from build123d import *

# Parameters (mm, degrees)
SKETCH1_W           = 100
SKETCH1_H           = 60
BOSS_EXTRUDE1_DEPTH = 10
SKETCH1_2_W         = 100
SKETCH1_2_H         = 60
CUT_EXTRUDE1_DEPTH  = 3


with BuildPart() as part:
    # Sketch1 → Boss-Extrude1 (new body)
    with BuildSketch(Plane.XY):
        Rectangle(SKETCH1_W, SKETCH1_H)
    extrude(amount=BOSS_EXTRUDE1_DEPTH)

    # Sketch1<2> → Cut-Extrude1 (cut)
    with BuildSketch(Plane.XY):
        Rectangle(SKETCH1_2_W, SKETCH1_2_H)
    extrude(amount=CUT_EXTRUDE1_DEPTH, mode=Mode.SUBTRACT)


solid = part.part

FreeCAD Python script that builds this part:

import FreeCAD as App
import Part
import Sketcher
from FreeCAD import Vector
Q = App.Units.Quantity


def add_polygon(sketch, points):
    """Adds a closed chain of lines whose ends are joined by coincident constraints."""
    first, n = sketch.GeometryCount, len(points)
    for a, b in zip(points, points[1:] + points[:1]):
        sketch.addGeometry(Part.LineSegment(App.Vector(*a, 0), App.Vector(*b, 0)), False)
    for i in range(n):
        sketch.addConstraint(Sketcher.Constraint("Coincident", first + i, 2, first + (i + 1) % n, 1))

doc = App.newDocument("Part")
params = doc.addObject("Spreadsheet::Sheet", "Params")
for row, (alias, value) in enumerate([
    ("sketch1_width", "100 mm"),
    ("sketch1_height", "60 mm"),
    ("pad1_length", "10 mm"),
    ("sketch2_width", "100 mm"),
    ("sketch2_height", "60 mm"),
    ("pocket1_length", "3 mm"),
], start=1):
    params.set(f"A{row}", alias)
    params.set(f"B{row}", "=" + value)
    params.setAlias(f"B{row}", alias)

body = doc.addObject("PartDesign::Body", "Body")

sketch1 = body.newObject("Sketcher::SketchObject", "Sketch")
sketch1.AttachmentSupport = (doc.getObject("XY_Plane"), [""])
sketch1.MapMode = "FlatFace"
add_polygon(sketch1, [(-50, 30), (-50, -30), (50, -30), (50, 30)])
sketch1.addConstraint([
    Sketcher.Constraint("Vertical", 0),
    Sketcher.Constraint("Horizontal", 1),
    Sketcher.Constraint("Vertical", 2),
    Sketcher.Constraint("Horizontal", 3),
    Sketcher.Constraint("Symmetric", 0, 2, 2, 2, -1, 1),
    Sketcher.Constraint("DistanceX", 1, 1, 1, 2, Q("100 mm")),
    Sketcher.Constraint("DistanceY", 0, 2, 0, 1, Q("60 mm")),
])
sketch1.setExpression("Constraints[9]", "Params.sketch1_width")
sketch1.setExpression("Constraints[10]", "Params.sketch1_height")
pad1 = body.newObject("PartDesign::Pad", "Pad")
pad1.Profile = sketch1
pad1.setExpression("Length", "Params.pad1_length")

sketch2 = body.newObject("Sketcher::SketchObject", "Sketch001")
sketch2.AttachmentSupport = (doc.getObject("XY_Plane"), [""])
sketch2.MapMode = "FlatFace"
add_polygon(sketch2, [(-50, 30), (-50, -30), (50, -30), (50, 30)])
sketch2.addConstraint([
    Sketcher.Constraint("Vertical", 0),
    Sketcher.Constraint("Horizontal", 1),
    Sketcher.Constraint("Vertical", 2),
    Sketcher.Constraint("Horizontal", 3),
    Sketcher.Constraint("Symmetric", 0, 2, 2, 2, -1, 1),
    Sketcher.Constraint("DistanceX", 1, 1, 1, 2, Q("100 mm")),
    Sketcher.Constraint("DistanceY", 0, 2, 0, 1, Q("60 mm")),
])
sketch2.setExpression("Constraints[9]", "Params.sketch2_width")
sketch2.setExpression("Constraints[10]", "Params.sketch2_height")
pocket1 = body.newObject("PartDesign::Pocket", "Pocket")
pocket1.Profile = sketch2
pocket1.setExpression("Length", "Params.pocket1_length")
pocket1.Reversed = True

doc.recompute()
